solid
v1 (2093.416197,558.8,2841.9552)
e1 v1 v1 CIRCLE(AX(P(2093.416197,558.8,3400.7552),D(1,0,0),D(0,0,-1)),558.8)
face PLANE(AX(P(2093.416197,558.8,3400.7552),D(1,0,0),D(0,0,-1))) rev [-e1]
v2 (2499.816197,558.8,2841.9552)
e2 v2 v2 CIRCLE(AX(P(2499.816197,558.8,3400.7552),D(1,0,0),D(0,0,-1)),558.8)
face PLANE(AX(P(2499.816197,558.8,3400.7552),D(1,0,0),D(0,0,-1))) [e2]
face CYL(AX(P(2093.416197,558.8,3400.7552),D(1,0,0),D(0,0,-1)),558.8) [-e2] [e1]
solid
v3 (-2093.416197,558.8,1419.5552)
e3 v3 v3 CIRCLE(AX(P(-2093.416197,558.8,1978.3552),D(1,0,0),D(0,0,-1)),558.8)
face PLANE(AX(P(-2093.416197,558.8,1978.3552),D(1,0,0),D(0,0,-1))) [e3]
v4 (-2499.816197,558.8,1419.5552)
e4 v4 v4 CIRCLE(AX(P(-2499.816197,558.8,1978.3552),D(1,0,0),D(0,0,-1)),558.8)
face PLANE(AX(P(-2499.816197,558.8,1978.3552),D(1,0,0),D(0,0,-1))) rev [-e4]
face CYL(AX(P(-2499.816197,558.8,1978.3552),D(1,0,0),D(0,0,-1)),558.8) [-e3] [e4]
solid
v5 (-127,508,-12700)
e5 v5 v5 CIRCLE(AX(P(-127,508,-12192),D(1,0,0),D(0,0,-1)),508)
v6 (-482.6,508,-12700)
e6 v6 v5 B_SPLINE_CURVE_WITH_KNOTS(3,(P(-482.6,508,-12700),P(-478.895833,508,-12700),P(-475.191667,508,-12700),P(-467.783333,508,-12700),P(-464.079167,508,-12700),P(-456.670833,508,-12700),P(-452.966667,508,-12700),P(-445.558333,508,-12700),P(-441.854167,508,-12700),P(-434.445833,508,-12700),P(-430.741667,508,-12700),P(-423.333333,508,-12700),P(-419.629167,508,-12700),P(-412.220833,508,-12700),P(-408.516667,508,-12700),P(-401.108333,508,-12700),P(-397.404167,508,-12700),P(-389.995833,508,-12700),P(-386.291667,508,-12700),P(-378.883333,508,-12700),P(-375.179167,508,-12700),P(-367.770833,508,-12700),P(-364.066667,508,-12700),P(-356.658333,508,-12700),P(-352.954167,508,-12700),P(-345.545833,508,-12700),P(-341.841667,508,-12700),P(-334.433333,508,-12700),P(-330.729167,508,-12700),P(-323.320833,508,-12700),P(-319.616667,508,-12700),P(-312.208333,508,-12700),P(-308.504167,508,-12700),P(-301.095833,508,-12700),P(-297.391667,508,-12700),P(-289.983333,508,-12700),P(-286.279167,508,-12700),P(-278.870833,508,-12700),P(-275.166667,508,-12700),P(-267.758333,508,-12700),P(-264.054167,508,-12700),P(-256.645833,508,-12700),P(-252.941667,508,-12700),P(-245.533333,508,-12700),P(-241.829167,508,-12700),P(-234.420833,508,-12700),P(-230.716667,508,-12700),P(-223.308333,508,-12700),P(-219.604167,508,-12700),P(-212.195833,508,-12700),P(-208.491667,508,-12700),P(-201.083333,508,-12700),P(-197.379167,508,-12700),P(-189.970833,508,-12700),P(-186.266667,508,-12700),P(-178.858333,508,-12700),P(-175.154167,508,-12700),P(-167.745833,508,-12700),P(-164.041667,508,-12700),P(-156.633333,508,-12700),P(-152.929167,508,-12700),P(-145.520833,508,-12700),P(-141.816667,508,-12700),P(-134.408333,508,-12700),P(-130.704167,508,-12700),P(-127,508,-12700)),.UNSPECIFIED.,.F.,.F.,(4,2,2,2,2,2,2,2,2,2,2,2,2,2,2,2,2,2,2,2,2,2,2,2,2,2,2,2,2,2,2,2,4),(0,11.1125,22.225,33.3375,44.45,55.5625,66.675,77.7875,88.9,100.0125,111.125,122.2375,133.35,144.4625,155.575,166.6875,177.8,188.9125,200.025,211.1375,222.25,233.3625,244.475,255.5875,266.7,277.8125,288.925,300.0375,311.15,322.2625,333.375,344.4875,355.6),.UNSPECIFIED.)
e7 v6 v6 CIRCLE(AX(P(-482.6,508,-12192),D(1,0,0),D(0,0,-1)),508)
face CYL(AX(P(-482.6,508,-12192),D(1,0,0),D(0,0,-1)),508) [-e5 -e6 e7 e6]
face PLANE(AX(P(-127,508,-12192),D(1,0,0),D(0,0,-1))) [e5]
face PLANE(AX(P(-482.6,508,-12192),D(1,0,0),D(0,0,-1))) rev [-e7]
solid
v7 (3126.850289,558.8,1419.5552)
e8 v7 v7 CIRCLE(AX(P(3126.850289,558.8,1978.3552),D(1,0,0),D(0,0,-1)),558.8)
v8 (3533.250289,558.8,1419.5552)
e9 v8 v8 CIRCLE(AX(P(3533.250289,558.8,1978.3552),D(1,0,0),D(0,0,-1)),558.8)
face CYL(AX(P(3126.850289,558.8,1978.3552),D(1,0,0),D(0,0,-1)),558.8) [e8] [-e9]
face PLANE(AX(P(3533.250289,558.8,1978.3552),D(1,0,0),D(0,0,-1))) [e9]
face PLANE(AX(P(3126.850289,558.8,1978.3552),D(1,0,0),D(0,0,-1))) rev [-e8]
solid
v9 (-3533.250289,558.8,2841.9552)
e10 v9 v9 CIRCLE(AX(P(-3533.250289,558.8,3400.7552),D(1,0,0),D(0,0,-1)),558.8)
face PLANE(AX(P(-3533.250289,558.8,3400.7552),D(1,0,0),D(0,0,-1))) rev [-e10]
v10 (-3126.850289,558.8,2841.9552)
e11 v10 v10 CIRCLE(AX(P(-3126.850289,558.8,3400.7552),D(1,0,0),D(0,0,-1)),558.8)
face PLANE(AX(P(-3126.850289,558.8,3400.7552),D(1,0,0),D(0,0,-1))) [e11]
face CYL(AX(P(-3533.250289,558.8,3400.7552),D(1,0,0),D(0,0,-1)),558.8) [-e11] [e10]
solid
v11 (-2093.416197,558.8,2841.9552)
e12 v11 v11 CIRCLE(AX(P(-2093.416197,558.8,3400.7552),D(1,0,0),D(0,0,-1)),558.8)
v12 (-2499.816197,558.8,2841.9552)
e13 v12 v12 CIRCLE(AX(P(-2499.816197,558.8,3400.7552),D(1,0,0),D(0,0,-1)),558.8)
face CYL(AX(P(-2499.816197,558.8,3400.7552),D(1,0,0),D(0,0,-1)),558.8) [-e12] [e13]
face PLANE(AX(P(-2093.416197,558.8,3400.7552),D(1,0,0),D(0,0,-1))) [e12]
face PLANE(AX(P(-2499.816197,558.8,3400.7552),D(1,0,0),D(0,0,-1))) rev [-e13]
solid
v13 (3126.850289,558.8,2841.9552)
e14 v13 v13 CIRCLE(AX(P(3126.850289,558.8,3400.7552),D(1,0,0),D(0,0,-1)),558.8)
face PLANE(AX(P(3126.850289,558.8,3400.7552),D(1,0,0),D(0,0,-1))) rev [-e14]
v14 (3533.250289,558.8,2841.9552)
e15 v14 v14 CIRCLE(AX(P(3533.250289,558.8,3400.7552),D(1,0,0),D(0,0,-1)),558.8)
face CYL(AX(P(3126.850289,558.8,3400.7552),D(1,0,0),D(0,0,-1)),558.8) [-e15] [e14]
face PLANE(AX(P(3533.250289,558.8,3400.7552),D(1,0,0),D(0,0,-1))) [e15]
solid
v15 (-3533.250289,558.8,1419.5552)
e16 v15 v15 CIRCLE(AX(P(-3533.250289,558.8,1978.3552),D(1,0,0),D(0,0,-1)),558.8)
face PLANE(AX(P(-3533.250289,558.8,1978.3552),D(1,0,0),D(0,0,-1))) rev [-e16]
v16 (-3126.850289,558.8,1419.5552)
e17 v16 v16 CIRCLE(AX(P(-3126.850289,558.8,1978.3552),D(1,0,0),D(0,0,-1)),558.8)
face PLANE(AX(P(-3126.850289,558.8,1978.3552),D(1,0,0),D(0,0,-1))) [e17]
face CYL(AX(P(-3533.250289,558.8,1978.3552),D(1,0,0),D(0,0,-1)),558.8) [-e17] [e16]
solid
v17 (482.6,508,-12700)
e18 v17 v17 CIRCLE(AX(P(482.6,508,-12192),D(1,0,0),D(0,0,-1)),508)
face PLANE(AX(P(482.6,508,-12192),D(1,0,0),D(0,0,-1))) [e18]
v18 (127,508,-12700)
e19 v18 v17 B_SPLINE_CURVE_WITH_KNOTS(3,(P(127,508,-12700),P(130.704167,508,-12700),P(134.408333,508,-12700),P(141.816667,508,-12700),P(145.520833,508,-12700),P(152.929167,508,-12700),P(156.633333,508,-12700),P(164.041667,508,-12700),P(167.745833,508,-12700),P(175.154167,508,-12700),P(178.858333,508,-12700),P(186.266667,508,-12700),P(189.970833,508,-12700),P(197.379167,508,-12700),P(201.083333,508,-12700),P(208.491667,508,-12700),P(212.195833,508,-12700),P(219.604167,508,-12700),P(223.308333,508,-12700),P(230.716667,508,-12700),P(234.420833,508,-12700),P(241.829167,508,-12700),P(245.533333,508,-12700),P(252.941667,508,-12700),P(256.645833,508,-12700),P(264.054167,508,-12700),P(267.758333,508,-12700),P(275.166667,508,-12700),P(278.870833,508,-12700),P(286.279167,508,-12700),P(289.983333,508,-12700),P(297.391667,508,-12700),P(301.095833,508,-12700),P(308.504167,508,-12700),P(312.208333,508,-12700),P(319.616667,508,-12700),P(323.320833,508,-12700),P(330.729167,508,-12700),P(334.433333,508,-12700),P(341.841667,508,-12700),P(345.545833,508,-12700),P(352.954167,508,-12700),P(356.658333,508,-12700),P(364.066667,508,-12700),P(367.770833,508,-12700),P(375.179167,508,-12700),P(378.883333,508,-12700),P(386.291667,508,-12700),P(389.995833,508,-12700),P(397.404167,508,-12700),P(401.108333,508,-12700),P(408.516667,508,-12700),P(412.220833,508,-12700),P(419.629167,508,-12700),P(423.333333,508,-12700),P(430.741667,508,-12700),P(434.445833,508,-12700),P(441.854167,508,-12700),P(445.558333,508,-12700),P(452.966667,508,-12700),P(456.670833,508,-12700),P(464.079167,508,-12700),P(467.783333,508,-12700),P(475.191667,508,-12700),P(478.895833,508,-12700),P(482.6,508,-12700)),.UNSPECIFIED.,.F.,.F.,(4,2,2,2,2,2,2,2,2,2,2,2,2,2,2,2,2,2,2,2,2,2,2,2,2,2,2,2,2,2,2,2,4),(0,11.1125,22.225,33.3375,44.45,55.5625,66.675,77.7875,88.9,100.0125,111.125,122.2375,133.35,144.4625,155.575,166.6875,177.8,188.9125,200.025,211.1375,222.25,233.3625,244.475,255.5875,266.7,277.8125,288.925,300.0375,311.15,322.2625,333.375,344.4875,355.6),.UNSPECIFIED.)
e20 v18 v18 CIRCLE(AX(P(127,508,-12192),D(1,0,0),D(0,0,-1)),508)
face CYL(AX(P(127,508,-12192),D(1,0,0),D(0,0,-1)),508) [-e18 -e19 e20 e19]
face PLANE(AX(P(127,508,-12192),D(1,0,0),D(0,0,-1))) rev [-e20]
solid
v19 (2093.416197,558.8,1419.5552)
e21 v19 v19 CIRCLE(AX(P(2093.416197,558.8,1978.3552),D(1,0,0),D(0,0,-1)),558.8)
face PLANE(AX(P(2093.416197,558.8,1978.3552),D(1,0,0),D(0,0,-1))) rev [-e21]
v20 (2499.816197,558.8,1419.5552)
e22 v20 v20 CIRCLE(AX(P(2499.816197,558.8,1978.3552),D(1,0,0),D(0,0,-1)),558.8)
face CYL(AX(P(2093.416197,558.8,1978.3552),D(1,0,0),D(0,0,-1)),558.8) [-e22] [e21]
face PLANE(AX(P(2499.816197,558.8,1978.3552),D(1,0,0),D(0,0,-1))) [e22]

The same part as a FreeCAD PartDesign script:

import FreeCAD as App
import Part
import Sketcher

V = App.Vector
Q = App.Units.Quantity

doc = App.newDocument("Part")
body = doc.addObject("PartDesign::Body", "Body")

# Sketch on YZ plane
sketch1 = body.newObject("Sketcher::SketchObject", "Sketch")
sketch1.AttachmentSupport = (doc.getObject("YZ_Plane"), [""])
sketch1.MapMode = "FlatFace"
sketch1.AttachmentOffset = App.Placement(V(0, 0, -2296.616197), App.Rotation())
sketch1.addGeometry(Part.Circle(V(558.8, 3400.7552, 0), V(0, 0, 1), 558.8), False)
sketch1.addConstraint([
    Sketcher.Constraint("Diameter", 0, Q("44 in")),
    Sketcher.Constraint("DistanceX", -1, 1, 0, 3, Q("22 in")),
    Sketcher.Constraint("DistanceY", -1, 1, 0, 3, Q("133.888 in")),
])
pad1 = body.newObject("PartDesign::Pad", "Pad")
pad1.Profile = sketch1
pad1.Type = "TwoLengths"
pad1.Length = Q("8 in")
pad1.Length2 = Q("8 in")
body2 = doc.addObject("PartDesign::Body", "Body001")

# Sketch on YZ plane
sketch2 = body2.newObject("Sketcher::SketchObject", "Sketch001")
sketch2.AttachmentSupport = (doc.getObject("YZ_Plane001"), [""])
sketch2.MapMode = "FlatFace"
sketch2.AttachmentOffset = App.Placement(V(0, 0, -2296.616197), App.Rotation())
sketch2.addGeometry(Part.Circle(V(558.8, 1978.3552, 0), V(0, 0, 1), 558.8), False)
sketch2.addConstraint([
    Sketcher.Constraint("Diameter", 0, Q("44 in")),
    Sketcher.Constraint("DistanceX", -1, 1, 0, 3, Q("22 in")),
    Sketcher.Constraint("DistanceY", -1, 1, 0, 3, Q("77.888 in")),
])
pad2 = body2.newObject("PartDesign::Pad", "Pad001")
pad2.Profile = sketch2
pad2.Type = "TwoLengths"
pad2.Length = Q("8 in")
pad2.Length2 = Q("8 in")
body3 = doc.addObject("PartDesign::Body", "Body002")

# Sketch on YZ plane
sketch3 = body3.newObject("Sketcher::SketchObject", "Sketch002")
sketch3.AttachmentSupport = (doc.getObject("YZ_Plane002"), [""])
sketch3.MapMode = "FlatFace"
sketch3.AttachmentOffset = App.Placement(V(0, 0, -3330.050289), App.Rotation())
sketch3.addGeometry(Part.Circle(V(558.8, 3400.7552, 0), V(0, 0, 1), 558.8), False)
sketch3.addConstraint([
    Sketcher.Constraint("Diameter", 0, Q("44 in")),
    Sketcher.Constraint("DistanceX", -1, 1, 0, 3, Q("22 in")),
    Sketcher.Constraint("DistanceY", -1, 1, 0, 3, Q("133.888 in")),
])
pad3 = body3.newObject("PartDesign::Pad", "Pad002")
pad3.Profile = sketch3
pad3.Type = "TwoLengths"
pad3.Length = Q("8 in")
pad3.Length2 = Q("8 in")
body4 = doc.addObject("PartDesign::Body", "Body003")

# Sketch on YZ plane
sketch4 = body4.newObject("Sketcher::SketchObject", "Sketch003")
sketch4.AttachmentSupport = (doc.getObject("YZ_Plane003"), [""])
sketch4.MapMode = "FlatFace"
sketch4.AttachmentOffset = App.Placement(V(0, 0, -3330.050289), App.Rotation())
sketch4.addGeometry(Part.Circle(V(558.8, 1978.3552, 0), V(0, 0, 1), 558.8), False)
sketch4.addConstraint([
    Sketcher.Constraint("Diameter", 0, Q("44 in")),
    Sketcher.Constraint("DistanceX", -1, 1, 0, 3, Q("22 in")),
    Sketcher.Constraint("DistanceY", -1, 1, 0, 3, Q("77.888 in")),
])
pad4 = body4.newObject("PartDesign::Pad", "Pad003")
pad4.Profile = sketch4
pad4.Type = "TwoLengths"
pad4.Length = Q("8 in")
pad4.Length2 = Q("8 in")
body5 = doc.addObject("PartDesign::Body", "Body004")

# Sketch on YZ plane
sketch5 = body5.newObject("Sketcher::SketchObject", "Sketch004")
sketch5.AttachmentSupport = (doc.getObject("YZ_Plane004"), [""])
sketch5.MapMode = "FlatFace"
sketch5.AttachmentOffset = App.Placement(V(0, 0, 2296.616197), App.Rotation())
sketch5.addGeometry(Part.Circle(V(558.8, 1978.3552, 0), V(0, 0, 1), 558.8), False)
sketch5.addConstraint([
    Sketcher.Constraint("Diameter", 0, Q("44 in")),
    Sketcher.Constraint("DistanceX", -1, 1, 0, 3, Q("22 in")),
    Sketcher.Constraint("DistanceY", -1, 1, 0, 3, Q("77.888 in")),
])
pad5 = body5.newObject("PartDesign::Pad", "Pad004")
pad5.Profile = sketch5
pad5.Type = "TwoLengths"
pad5.Length = Q("8 in")
pad5.Length2 = Q("8 in")
body6 = doc.addObject("PartDesign::Body", "Body005")

# Sketch on YZ plane
sketch6 = body6.newObject("Sketcher::SketchObject", "Sketch005")
sketch6.AttachmentSupport = (doc.getObject("YZ_Plane005"), [""])
sketch6.MapMode = "FlatFace"
sketch6.AttachmentOffset = App.Placement(V(0, 0, 2296.616197), App.Rotation())
sketch6.addGeometry(Part.Circle(V(558.8, 3400.7552, 0), V(0, 0, 1), 558.8), False)
sketch6.addConstraint([
    Sketcher.Constraint("Diameter", 0, Q("44 in")),
    Sketcher.Constraint("DistanceX", -1, 1, 0, 3, Q("22 in")),
    Sketcher.Constraint("DistanceY", -1, 1, 0, 3, Q("133.888 in")),
])
pad6 = body6.newObject("PartDesign::Pad", "Pad005")
pad6.Profile = sketch6
pad6.Type = "TwoLengths"
pad6.Length = Q("8 in")
pad6.Length2 = Q("8 in")
body7 = doc.addObject("PartDesign::Body", "Body006")

# Sketch on YZ plane
sketch7 = body7.newObject("Sketcher::SketchObject", "Sketch006")
sketch7.AttachmentSupport = (doc.getObject("YZ_Plane006"), [""])
sketch7.MapMode = "FlatFace"
sketch7.AttachmentOffset = App.Placement(V(0, 0, 3330.050289), App.Rotation())
sketch7.addGeometry(Part.Circle(V(558.8, 3400.7552, 0), V(0, 0, 1), 558.8), False)
sketch7.addConstraint([
    Sketcher.Constraint("Diameter", 0, Q("44 in")),
    Sketcher.Constraint("DistanceX", -1, 1, 0, 3, Q("22 in")),
    Sketcher.Constraint("DistanceY", -1, 1, 0, 3, Q("133.888 in")),
])
pad7 = body7.newObject("PartDesign::Pad", "Pad006")
pad7.Profile = sketch7
pad7.Type = "TwoLengths"
pad7.Length = Q("8 in")
pad7.Length2 = Q("8 in")
body8 = doc.addObject("PartDesign::Body", "Body007")

# Sketch on YZ plane
sketch8 = body8.newObject("Sketcher::SketchObject", "Sketch007")
sketch8.AttachmentSupport = (doc.getObject("YZ_Plane007"), [""])
sketch8.MapMode = "FlatFace"
sketch8.AttachmentOffset = App.Placement(V(0, 0, 3330.050289), App.Rotation())
sketch8.addGeometry(Part.Circle(V(558.8, 1978.3552, 0), V(0, 0, 1), 558.8), False)
sketch8.addConstraint([
    Sketcher.Constraint("Diameter", 0, Q("44 in")),
    Sketcher.Constraint("DistanceX", -1, 1, 0, 3, Q("22 in")),
    Sketcher.Constraint("DistanceY", -1, 1, 0, 3, Q("77.888 in")),
])
pad8 = body8.newObject("PartDesign::Pad", "Pad007")
pad8.Profile = sketch8
pad8.Type = "TwoLengths"
pad8.Length = Q("8 in")
pad8.Length2 = Q("8 in")
body9 = doc.addObject("PartDesign::Body", "Body008")

# Sketch on YZ plane
sketch9 = body9.newObject("Sketcher::SketchObject", "Sketch008")
sketch9.AttachmentSupport = (doc.getObject("YZ_Plane008"), [""])
sketch9.MapMode = "FlatFace"
sketch9.AttachmentOffset = App.Placement(V(0, 0, -12 * 25.4), App.Rotation())
sketch9.addGeometry(Part.Circle(V(508, -12192, 0), V(0, 0, 1), 508), False)
sketch9.addConstraint([
    Sketcher.Constraint("Diameter", 0, Q("40 in")),
    Sketcher.Constraint("DistanceX", -1, 1, 0, 3, Q("20 in")),
    Sketcher.Constraint("DistanceY", 0, 3, -1, 1, Q("480 in")),
])
pad9 = body9.newObject("PartDesign::Pad", "Pad008")
pad9.Profile = sketch9
pad9.Type = "TwoLengths"
pad9.Length = Q("7 in")
pad9.Length2 = Q("7 in")
body10 = doc.addObject("PartDesign::Body", "Body009")

# Sketch on YZ plane
sketch10 = body10.newObject("Sketcher::SketchObject", "Sketch009")
sketch10.AttachmentSupport = (doc.getObject("YZ_Plane009"), [""])
sketch10.MapMode = "FlatFace"
sketch10.AttachmentOffset = App.Placement(V(0, 0, 12 * 25.4), App.Rotation())
sketch10.addGeometry(Part.Circle(V(508, -12192, 0), V(0, 0, 1), 508), False)
sketch10.addConstraint([
    Sketcher.Constraint("Diameter", 0, Q("40 in")),
    Sketcher.Constraint("DistanceX", -1, 1, 0, 3, Q("20 in")),
    Sketcher.Constraint("DistanceY", 0, 3, -1, 1, Q("480 in")),
])
pad10 = body10.newObject("PartDesign::Pad", "Pad009")
pad10.Profile = sketch10
pad10.Type = "TwoLengths"
pad10.Length = Q("7 in")
pad10.Length2 = Q("7 in")

doc.recompute()
